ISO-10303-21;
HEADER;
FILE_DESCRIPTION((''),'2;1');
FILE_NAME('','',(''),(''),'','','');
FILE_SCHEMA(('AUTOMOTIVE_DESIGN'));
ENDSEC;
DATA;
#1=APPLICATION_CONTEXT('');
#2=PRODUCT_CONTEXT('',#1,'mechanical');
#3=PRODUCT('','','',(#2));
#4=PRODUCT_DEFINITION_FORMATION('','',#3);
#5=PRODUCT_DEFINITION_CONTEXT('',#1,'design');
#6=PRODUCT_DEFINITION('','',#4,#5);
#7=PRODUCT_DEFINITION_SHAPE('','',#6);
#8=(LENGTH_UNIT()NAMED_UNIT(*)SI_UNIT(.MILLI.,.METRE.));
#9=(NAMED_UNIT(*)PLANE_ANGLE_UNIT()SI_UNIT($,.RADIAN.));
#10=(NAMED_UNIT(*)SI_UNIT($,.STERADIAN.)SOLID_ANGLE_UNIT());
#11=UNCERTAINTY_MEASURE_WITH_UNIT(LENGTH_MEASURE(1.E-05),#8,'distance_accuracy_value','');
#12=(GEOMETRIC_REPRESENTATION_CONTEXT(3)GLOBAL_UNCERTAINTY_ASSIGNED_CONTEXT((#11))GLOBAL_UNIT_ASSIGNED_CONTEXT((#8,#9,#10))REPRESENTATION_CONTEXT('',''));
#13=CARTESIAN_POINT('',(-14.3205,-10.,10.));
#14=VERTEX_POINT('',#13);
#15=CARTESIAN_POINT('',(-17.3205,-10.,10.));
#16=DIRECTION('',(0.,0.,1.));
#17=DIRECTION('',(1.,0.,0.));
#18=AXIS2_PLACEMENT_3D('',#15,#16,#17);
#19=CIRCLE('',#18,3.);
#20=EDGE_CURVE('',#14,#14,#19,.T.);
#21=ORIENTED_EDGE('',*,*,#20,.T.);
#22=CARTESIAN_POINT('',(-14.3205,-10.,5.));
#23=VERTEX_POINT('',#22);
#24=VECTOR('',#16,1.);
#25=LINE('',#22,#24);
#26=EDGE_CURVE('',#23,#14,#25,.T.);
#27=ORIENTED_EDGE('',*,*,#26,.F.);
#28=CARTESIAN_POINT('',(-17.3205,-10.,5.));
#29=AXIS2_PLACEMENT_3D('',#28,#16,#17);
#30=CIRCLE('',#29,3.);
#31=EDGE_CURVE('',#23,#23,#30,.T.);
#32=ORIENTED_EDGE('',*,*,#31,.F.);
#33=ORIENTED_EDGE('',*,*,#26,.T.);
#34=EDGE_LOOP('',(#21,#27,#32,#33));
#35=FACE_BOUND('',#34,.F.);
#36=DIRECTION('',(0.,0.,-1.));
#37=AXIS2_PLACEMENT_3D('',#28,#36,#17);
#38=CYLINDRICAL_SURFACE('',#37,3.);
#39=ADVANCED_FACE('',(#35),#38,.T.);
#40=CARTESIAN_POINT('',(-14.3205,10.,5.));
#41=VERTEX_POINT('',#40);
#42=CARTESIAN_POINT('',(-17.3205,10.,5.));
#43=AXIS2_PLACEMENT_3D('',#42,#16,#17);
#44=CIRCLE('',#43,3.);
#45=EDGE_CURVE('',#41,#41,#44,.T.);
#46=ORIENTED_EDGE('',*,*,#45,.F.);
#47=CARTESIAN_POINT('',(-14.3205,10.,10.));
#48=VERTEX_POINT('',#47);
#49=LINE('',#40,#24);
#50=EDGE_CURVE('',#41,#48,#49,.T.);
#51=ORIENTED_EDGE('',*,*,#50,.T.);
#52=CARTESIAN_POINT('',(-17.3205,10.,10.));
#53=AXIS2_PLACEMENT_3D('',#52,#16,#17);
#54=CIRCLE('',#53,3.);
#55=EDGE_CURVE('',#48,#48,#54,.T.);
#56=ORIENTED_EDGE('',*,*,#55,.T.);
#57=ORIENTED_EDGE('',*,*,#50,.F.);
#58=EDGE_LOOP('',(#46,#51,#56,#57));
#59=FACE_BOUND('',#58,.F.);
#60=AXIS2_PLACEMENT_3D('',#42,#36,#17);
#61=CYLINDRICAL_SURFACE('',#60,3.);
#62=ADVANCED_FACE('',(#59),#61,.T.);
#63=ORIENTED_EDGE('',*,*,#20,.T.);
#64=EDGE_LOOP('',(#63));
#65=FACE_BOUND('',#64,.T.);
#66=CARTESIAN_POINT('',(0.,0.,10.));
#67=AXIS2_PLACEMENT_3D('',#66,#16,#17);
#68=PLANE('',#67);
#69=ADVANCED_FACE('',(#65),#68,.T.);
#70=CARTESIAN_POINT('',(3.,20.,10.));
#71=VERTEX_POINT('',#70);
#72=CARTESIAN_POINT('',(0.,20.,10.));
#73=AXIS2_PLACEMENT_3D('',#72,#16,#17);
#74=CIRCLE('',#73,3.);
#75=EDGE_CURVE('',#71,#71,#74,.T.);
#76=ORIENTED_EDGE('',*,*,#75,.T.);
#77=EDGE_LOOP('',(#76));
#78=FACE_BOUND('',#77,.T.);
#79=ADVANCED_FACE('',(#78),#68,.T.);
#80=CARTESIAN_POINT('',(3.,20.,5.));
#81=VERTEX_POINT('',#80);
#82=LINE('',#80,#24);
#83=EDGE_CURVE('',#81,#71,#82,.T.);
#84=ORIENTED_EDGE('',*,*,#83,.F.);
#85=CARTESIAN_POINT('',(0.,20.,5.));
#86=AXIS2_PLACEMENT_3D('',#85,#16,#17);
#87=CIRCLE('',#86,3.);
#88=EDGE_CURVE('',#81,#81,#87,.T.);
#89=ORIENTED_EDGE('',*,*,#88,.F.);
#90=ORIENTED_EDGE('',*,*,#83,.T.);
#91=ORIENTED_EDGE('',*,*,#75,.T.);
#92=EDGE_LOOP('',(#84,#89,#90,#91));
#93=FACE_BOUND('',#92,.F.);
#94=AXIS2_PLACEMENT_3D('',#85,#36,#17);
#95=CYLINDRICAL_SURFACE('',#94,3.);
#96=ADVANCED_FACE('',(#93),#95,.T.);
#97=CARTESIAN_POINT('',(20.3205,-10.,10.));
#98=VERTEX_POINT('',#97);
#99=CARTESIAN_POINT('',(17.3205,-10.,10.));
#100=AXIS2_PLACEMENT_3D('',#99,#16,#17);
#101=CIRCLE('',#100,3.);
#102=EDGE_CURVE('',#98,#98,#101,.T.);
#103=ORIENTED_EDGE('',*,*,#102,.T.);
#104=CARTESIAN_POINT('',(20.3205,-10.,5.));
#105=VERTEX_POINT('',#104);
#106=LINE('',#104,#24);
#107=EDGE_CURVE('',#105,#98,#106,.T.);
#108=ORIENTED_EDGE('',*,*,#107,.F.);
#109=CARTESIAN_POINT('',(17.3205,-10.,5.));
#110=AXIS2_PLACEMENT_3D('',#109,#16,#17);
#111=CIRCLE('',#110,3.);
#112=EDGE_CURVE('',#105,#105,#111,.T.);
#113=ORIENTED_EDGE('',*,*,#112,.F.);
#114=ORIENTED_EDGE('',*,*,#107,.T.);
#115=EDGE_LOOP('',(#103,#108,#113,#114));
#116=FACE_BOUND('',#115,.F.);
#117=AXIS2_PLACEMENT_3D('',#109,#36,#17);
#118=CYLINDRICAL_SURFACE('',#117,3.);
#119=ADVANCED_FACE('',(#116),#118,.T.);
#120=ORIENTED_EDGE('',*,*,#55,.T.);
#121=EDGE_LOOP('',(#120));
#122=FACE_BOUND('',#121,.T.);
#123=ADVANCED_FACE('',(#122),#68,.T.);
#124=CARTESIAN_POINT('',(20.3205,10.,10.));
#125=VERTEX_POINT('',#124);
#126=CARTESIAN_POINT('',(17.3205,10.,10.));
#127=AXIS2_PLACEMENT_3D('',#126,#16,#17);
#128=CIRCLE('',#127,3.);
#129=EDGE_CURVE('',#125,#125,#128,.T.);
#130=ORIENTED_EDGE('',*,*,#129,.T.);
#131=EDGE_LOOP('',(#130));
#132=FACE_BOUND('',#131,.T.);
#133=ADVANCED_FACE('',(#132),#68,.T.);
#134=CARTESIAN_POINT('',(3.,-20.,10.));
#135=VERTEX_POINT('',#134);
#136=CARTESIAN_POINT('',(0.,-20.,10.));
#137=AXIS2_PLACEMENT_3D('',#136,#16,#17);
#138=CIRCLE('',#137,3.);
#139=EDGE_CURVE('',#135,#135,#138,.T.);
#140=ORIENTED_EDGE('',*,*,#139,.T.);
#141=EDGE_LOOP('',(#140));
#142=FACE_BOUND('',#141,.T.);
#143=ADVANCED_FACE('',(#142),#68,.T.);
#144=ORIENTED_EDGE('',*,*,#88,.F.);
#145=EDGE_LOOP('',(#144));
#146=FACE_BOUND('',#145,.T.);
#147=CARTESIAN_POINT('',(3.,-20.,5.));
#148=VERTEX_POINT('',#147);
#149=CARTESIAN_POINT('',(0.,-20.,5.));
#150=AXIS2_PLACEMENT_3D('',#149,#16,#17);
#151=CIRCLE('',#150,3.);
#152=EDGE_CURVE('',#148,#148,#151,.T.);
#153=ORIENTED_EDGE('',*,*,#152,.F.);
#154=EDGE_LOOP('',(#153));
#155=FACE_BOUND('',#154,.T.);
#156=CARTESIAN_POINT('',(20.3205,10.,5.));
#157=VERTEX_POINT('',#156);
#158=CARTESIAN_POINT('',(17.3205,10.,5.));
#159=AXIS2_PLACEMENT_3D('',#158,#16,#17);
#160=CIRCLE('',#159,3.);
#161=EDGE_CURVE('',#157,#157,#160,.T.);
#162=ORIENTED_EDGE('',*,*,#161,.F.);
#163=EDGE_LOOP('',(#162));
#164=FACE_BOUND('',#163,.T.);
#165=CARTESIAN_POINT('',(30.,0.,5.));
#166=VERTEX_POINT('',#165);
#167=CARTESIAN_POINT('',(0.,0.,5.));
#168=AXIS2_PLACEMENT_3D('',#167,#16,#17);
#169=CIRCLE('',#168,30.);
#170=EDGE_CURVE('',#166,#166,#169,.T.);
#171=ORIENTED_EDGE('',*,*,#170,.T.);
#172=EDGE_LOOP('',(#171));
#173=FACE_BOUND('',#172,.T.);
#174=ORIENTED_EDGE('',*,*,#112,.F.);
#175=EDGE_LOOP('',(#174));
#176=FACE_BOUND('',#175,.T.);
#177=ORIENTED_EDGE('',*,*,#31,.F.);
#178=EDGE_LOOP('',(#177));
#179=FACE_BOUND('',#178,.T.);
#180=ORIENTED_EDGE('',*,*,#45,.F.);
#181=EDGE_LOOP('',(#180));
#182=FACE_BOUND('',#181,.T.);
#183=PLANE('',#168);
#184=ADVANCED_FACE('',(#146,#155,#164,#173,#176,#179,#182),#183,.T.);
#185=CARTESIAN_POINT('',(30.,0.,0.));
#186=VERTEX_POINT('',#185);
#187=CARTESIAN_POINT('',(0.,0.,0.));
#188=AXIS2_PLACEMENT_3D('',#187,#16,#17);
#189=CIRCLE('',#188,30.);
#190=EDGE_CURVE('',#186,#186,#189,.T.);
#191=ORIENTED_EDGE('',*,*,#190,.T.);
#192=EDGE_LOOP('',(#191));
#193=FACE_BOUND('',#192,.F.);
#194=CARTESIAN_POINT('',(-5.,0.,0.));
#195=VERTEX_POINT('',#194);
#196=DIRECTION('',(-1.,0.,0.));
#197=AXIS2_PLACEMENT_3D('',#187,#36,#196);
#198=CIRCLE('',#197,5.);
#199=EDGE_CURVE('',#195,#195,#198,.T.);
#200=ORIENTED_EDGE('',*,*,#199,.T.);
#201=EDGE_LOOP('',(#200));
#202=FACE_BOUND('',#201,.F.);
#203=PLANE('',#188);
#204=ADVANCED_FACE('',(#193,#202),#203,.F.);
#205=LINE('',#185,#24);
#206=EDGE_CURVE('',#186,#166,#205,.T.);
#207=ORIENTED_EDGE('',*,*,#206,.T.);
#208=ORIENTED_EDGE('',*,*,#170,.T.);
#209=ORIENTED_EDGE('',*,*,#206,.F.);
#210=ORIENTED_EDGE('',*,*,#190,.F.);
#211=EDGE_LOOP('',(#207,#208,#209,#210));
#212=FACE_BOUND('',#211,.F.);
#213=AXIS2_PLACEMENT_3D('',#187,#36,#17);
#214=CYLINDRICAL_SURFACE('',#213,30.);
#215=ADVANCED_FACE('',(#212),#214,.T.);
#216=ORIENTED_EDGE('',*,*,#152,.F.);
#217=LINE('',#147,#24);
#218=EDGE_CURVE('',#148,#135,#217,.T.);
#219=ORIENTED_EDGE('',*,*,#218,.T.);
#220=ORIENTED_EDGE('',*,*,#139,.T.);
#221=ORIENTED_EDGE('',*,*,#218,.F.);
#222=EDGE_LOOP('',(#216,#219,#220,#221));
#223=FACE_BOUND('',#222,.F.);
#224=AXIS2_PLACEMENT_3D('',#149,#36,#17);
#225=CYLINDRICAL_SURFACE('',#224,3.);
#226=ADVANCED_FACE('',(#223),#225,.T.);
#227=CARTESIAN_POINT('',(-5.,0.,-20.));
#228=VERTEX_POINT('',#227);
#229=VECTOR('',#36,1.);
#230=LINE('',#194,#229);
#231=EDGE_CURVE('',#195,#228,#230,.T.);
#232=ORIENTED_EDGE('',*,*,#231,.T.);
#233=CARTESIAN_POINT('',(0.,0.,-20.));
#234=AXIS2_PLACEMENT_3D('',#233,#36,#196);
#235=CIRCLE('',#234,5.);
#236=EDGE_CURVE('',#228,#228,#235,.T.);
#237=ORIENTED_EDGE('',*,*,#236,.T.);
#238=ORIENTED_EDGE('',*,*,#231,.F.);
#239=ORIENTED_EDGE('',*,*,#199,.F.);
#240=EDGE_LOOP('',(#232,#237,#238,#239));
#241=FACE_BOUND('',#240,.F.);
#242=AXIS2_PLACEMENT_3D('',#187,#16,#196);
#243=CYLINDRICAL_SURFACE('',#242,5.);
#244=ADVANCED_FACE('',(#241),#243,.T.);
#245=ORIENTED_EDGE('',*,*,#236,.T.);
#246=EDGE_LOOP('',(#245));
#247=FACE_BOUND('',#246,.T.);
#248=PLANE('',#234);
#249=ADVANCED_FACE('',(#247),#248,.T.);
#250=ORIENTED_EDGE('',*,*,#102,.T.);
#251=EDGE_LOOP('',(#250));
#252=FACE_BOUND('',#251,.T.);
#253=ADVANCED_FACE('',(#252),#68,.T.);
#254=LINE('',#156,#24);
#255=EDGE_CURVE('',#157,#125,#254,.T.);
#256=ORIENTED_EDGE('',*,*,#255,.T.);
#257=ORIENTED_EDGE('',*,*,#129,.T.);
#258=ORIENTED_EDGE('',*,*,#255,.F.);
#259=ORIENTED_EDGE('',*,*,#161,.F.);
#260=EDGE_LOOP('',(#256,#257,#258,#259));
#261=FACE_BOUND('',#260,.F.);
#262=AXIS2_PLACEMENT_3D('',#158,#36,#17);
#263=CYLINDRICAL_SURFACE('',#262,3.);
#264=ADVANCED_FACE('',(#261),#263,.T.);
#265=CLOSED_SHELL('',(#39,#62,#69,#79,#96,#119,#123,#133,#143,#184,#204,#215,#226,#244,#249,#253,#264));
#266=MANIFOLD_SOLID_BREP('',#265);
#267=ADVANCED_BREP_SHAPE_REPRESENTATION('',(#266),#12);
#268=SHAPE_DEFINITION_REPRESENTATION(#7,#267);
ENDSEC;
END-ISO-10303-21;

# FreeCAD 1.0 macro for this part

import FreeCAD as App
import Part
import Sketcher

V = App.Vector
Q = App.Units.Quantity

doc = App.newDocument("Part")
body = doc.addObject("PartDesign::Body", "Body")

sketch1 = doc.addObject("Sketcher::SketchObject", "Sketch")
body.addObject(sketch1)
sketch1.AttachmentSupport = (doc.XY_Plane, [""])
sketch1.MapMode = "FlatFace"
sketch1.addGeometry(Part.Circle(V(0, 0, 0), V(0, 0, 1), 30), False)
sketch1.addConstraint([
    Sketcher.Constraint("Coincident", 0, 3, -1, 1),
    Sketcher.Constraint("Diameter", 0, Q("60 mm")),
])
pad1 = doc.addObject("PartDesign::Pad", "Pad")
body.addObject(pad1)
pad1.Profile = sketch1
pad1.Length = 5

sketch2 = doc.addObject("Sketcher::SketchObject", "Sketch001")
body.addObject(sketch2)
sketch2.AttachmentSupport = (doc.XY_Plane, [""])
sketch2.MapMode = "FlatFace"
sketch2.AttachmentOffset = App.Placement(V(0, 0, 5), App.Rotation())
sketch2.addGeometry([
    Part.Circle(V(0, 20, 0), V(0, 0, 1), 3),
    Part.Circle(V(-17.3, 10, 0), V(0, 0, 1), 3),
    Part.Circle(V(-17.3, -10, 0), V(0, 0, 1), 3),
    Part.Circle(V(0, -20, 0), V(0, 0, 1), 3),
    Part.Circle(V(17.3, -10, 0), V(0, 0, 1), 3),
    Part.Circle(V(17.3, 10, 0), V(0, 0, 1), 3),
], False)
sketch2.addConstraint([
    Sketcher.Constraint("Equal", 0, 1),
    Sketcher.Constraint("Equal", 1, 2),
    Sketcher.Constraint("Equal", 2, 3),
    Sketcher.Constraint("Equal", 3, 4),
    Sketcher.Constraint("Equal", 4, 5),
    Sketcher.Constraint("Symmetric", 0, 3, 3, 3, -1, 1),
    Sketcher.Constraint("Symmetric", 1, 3, 4, 3, -1, 1),
    Sketcher.Constraint("Symmetric", 2, 3, 5, 3, -1, 1),
    Sketcher.Constraint("Symmetric", 2, 3, 4, 3, -2),
    Sketcher.Constraint("PointOnObject", 0, 3, -2),
    Sketcher.Constraint("Diameter", 0, Q("6 mm")),
    Sketcher.Constraint("DistanceY", -1, 1, 0, 3, Q("20 mm")),
    Sketcher.Constraint("DistanceY", 2, 3, 1, 3, Q("20 mm")),
    Sketcher.Constraint("DistanceX", 2, 3, 4, 3, Q("34.641 mm")),
])
pad2 = doc.addObject("PartDesign::Pad", "Pad001")
body.addObject(pad2)
pad2.Profile = sketch2
pad2.Length = 5

sketch3 = doc.addObject("Sketcher::SketchObject", "Sketch002")
body.addObject(sketch3)
sketch3.AttachmentSupport = (doc.XY_Plane, [""])
sketch3.MapMode = "FlatFace"
sketch3.addGeometry(Part.Circle(V(0, 0, 0), V(0, 0, 1), 5), False)
sketch3.addConstraint([
    Sketcher.Constraint("Coincident", 0, 3, -1, 1),
    Sketcher.Constraint("Diameter", 0, Q("10 mm")),
])
pad3 = doc.addObject("PartDesign::Pad", "Pad002")
body.addObject(pad3)
pad3.Profile = sketch3
pad3.Length = 20
pad3.Reversed = True

doc.recompute()
